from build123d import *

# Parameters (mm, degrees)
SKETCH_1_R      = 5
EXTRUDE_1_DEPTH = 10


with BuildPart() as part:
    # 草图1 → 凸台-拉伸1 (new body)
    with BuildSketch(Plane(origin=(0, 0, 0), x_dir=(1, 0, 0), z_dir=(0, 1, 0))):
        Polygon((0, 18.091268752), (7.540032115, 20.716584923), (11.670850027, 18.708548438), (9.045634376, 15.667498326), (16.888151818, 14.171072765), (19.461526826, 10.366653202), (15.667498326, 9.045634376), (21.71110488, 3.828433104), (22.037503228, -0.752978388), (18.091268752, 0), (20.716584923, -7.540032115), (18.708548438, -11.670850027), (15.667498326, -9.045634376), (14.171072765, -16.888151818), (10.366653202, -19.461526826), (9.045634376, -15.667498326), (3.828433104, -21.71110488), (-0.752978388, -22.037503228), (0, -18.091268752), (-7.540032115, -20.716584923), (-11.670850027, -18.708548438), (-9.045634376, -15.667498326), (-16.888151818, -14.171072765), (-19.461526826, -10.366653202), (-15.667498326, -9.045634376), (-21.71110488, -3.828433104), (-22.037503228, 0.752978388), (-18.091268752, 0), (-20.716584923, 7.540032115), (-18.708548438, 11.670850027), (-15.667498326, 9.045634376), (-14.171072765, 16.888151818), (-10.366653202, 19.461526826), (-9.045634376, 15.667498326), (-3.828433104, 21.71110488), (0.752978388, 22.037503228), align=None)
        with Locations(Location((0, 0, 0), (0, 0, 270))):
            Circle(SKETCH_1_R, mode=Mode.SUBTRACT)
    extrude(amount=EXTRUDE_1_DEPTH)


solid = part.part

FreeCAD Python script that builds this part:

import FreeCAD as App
import Part
import Sketcher

V = App.Vector

doc = App.newDocument("Part")
params = doc.addObject("Spreadsheet::Sheet", "Params")
for row, (alias, value) in enumerate([
    ("sketch1_diameter", "10 mm"),
    ("pad1_length", "10 mm"),
], start=1):
    params.set(f"A{row}", alias)
    params.set(f"B{row}", "=" + value)
    params.setAlias(f"B{row}", alias)

body = doc.addObject("PartDesign::Body", "Body")

# Sketch on XZ plane
sketch1 = body.newObject("Sketcher::SketchObject", "Sketch")
sketch1.AttachmentSupport = (doc.getObject("XZ_Plane"), [""])
sketch1.MapMode = "FlatFace"
sketch1.addGeometry([
    Part.LineSegment(V(7.5, -20.7, 0), V(0, -18.1, 0)),  # 0
    Part.LineSegment(V(0, -18.1, 0), V(0.8, -22, 0)),  # 1
    Part.LineSegment(V(0.8, -22, 0), V(-3.8, -21.7, 0)),  # 2
    Part.LineSegment(V(-3.8, -21.7, 0), V(-9, -15.7, 0)),  # 3
    Part.LineSegment(V(-9, -15.7, 0), V(-10.4, -19.5, 0)),  # 4
    Part.LineSegment(V(-10.4, -19.5, 0), V(-14.2, -16.9, 0)),  # 5
    Part.LineSegment(V(-14.2, -16.9, 0), V(-15.7, -9, 0)),  # 6
    Part.LineSegment(V(-15.7, -9, 0), V(-18.7, -11.7, 0)),  # 7
    Part.LineSegment(V(-18.7, -11.7, 0), V(-20.7, -7.5, 0)),  # 8
    Part.LineSegment(V(-20.7, -7.5, 0), V(-18.1, 0, 0)),  # 9
    Part.LineSegment(V(-18.1, 0, 0), V(-22, -0.8, 0)),  # 10
    Part.LineSegment(V(-22, -0.8, 0), V(-21.7, 3.8, 0)),  # 11
    Part.LineSegment(V(-21.7, 3.8, 0), V(-15.7, 9, 0)),  # 12
    Part.LineSegment(V(-15.7, 9, 0), V(-19.5, 10.4, 0)),  # 13
    Part.LineSegment(V(-19.5, 10.4, 0), V(-16.9, 14.2, 0)),  # 14
    Part.LineSegment(V(-16.9, 14.2, 0), V(-9, 15.7, 0)),  # 15
    Part.LineSegment(V(-9, 15.7, 0), V(-11.7, 18.7, 0)),  # 16
    Part.LineSegment(V(-11.7, 18.7, 0), V(-7.5, 20.7, 0)),  # 17
    Part.LineSegment(V(-7.5, 20.7, 0), V(0, 18.1, 0)),  # 18
    Part.LineSegment(V(0, 18.1, 0), V(-0.8, 22, 0)),  # 19
    Part.LineSegment(V(-0.8, 22, 0), V(3.8, 21.7, 0)),  # 20
    Part.LineSegment(V(3.8, 21.7, 0), V(9, 15.7, 0)),  # 21
    Part.LineSegment(V(9, 15.7, 0), V(10.4, 19.5, 0)),  # 22
    Part.LineSegment(V(10.4, 19.5, 0), V(14.2, 16.9, 0)),  # 23
    Part.LineSegment(V(14.2, 16.9, 0), V(15.7, 9, 0)),  # 24
    Part.LineSegment(V(15.7, 9, 0), V(18.7, 11.7, 0)),  # 25
    Part.LineSegment(V(18.7, 11.7, 0), V(20.7, 7.5, 0)),  # 26
    Part.LineSegment(V(20.7, 7.5, 0), V(18.1, 0, 0)),  # 27
    Part.LineSegment(V(18.1, 0, 0), V(22, 0.8, 0)),  # 28
    Part.LineSegment(V(22, 0.8, 0), V(21.7, -3.8, 0)),  # 29
    Part.LineSegment(V(21.7, -3.8, 0), V(15.7, -9, 0)),  # 30
    Part.LineSegment(V(15.7, -9, 0), V(19.5, -10.4, 0)),  # 31
    Part.LineSegment(V(19.5, -10.4, 0), V(16.9, -14.2, 0)),  # 32
    Part.LineSegment(V(16.9, -14.2, 0), V(9, -15.7, 0)),  # 33
    Part.LineSegment(V(9, -15.7, 0), V(11.7, -18.7, 0)),  # 34
    Part.LineSegment(V(11.7, -18.7, 0), V(7.5, -20.7, 0)),  # 35
    Part.Circle(V(0, 0, 0), V(0, 0, 1), 5),  # 36
], False)
sketch1.addConstraint([
    Sketcher.Constraint("Coincident", 0, 2, 1, 1),
    Sketcher.Constraint("Coincident", 1, 2, 2, 1),
    Sketcher.Constraint("Coincident", 2, 2, 3, 1),
    Sketcher.Constraint("Coincident", 3, 2, 4, 1),
    Sketcher.Constraint("Coincident", 4, 2, 5, 1),
    Sketcher.Constraint("Coincident", 5, 2, 6, 1),
    Sketcher.Constraint("Coincident", 6, 2, 7, 1),
    Sketcher.Constraint("Coincident", 7, 2, 8, 1),
    Sketcher.Constraint("Coincident", 8, 2, 9, 1),
    Sketcher.Constraint("Coincident", 9, 2, 10, 1),
    Sketcher.Constraint("Coincident", 10, 2, 11, 1),
    Sketcher.Constraint("Coincident", 11, 2, 12, 1),
    Sketcher.Constraint("Coincident", 12, 2, 13, 1),
    Sketcher.Constraint("Coincident", 13, 2, 14, 1),
    Sketcher.Constraint("Coincident", 14, 2, 15, 1),
    Sketcher.Constraint("Coincident", 15, 2, 16, 1),
    Sketcher.Constraint("Coincident", 16, 2, 17, 1),
    Sketcher.Constraint("Coincident", 17, 2, 18, 1),
    Sketcher.Constraint("Coincident", 18, 2, 19, 1),
    Sketcher.Constraint("Coincident", 19, 2, 20, 1),
    Sketcher.Constraint("Coincident", 20, 2, 21, 1),
    Sketcher.Constraint("Coincident", 21, 2, 22, 1),
    Sketcher.Constraint("Coincident", 22, 2, 23, 1),
    Sketcher.Constraint("Coincident", 23, 2, 24, 1),
    Sketcher.Constraint("Coincident", 24, 2, 25, 1),
    Sketcher.Constraint("Coincident", 25, 2, 26, 1),
    Sketcher.Constraint("Coincident", 26, 2, 27, 1),
    Sketcher.Constraint("Coincident", 27, 2, 28, 1),
    Sketcher.Constraint("Coincident", 28, 2, 29, 1),
    Sketcher.Constraint("Coincident", 29, 2, 30, 1),
    Sketcher.Constraint("Coincident", 30, 2, 31, 1),
    Sketcher.Constraint("Coincident", 31, 2, 32, 1),
    Sketcher.Constraint("Coincident", 32, 2, 33, 1),
    Sketcher.Constraint("Coincident", 33, 2, 34, 1),
    Sketcher.Constraint("Coincident", 34, 2, 35, 1),
    Sketcher.Constraint("Coincident", 35, 2, 0, 1),
    Sketcher.Constraint("Coincident", 36, 3, -1, 1),
    Sketcher.Constraint("Symmetric", 0, 2, 18, 2, -1, 1),
    Sketcher.Constraint("Symmetric", 1, 2, 19, 2, -1, 1),
    Sketcher.Constraint("Symmetric", 2, 2, 20, 2, -1, 1),
    Sketcher.Constraint("Symmetric", 3, 2, 21, 2, -1, 1),
    Sketcher.Constraint("Symmetric", 4, 2, 22, 2, -1, 1),
    Sketcher.Constraint("Symmetric", 5, 2, 23, 2, -1, 1),
    Sketcher.Constraint("Symmetric", 6, 2, 24, 2, -1, 1),
    Sketcher.Constraint("Symmetric", 7, 2, 25, 2, -1, 1),
    Sketcher.Constraint("Symmetric", 8, 2, 26, 2, -1, 1),
    Sketcher.Constraint("Symmetric", 9, 2, 27, 2, -1, 1),
    Sketcher.Constraint("Symmetric", 10, 2, 28, 2, -1, 1),
    Sketcher.Constraint("Symmetric", 11, 2, 29, 2, -1, 1),
    Sketcher.Constraint("Symmetric", 12, 2, 30, 2, -1, 1),
    Sketcher.Constraint("Symmetric", 13, 2, 31, 2, -1, 1),
    Sketcher.Constraint("Symmetric", 14, 2, 32, 2, -1, 1),
    Sketcher.Constraint("Symmetric", 15, 2, 33, 2, -1, 1),
    Sketcher.Constraint("Symmetric", 16, 2, 34, 2, -1, 1),
    Sketcher.Constraint("Symmetric", 17, 2, 35, 2, -1, 1),
    Sketcher.Constraint("Symmetric", 15, 2, 21, 2, -2),
    Sketcher.Constraint("Symmetric", 12, 2, 24, 2, -2),
    Sketcher.Constraint("PointOnObject", 0, 2, -2),
    Sketcher.Constraint("PointOnObject", 9, 2, -1),
    Sketcher.Constraint("Perpendicular", 0, 4),
    Sketcher.Constraint("Parallel", 1, 6),
    Sketcher.Constraint("Perpendicular", 3, 7),
    Sketcher.Constraint("Parallel", 4, 9),
    Sketcher.Constraint("Perpendicular", 6, 10),
    Sketcher.Constraint("Perpendicular", 2, 11),
    Sketcher.Constraint("Parallel", 7, 12),
    Sketcher.Constraint("Perpendicular", 9, 13),
    Sketcher.Constraint("Perpendicular", 5, 14),
    Sketcher.Constraint("Parallel", 10, 15),
    Sketcher.Constraint("Perpendicular", 12, 16),
    Sketcher.Constraint("Perpendicular", 8, 17),
    Sketcher.Constraint("Equal", 0, 3),
    Sketcher.Constraint("Equal", 1, 4),
    Sketcher.Constraint("Equal", 2, 5),
    Sketcher.Constraint("Equal", 3, 6),
    Sketcher.Constraint("Equal", 4, 7),
    Sketcher.Constraint("Equal", 5, 8),
    Sketcher.Constraint("Equal", 6, 9),
    Sketcher.Constraint("Equal", 7, 10),
    Sketcher.Constraint("Equal", 8, 11),
    Sketcher.Constraint("Equal", 9, 12),
    Sketcher.Constraint("Equal", 10, 13),
    Sketcher.Constraint("Equal", 11, 14),
    Sketcher.Constraint("Diameter", 36, 10.0),
    Sketcher.Constraint("DistanceY", 3, 2, -1, 1, 15.667498),
    Sketcher.Constraint("DistanceY", 1, 2, 2, 2, 0.326398),
    Sketcher.Constraint("DistanceX", 3, 2, 2, 2, 5.217201),
    Sketcher.Constraint("DistanceY", 5, 2, 7, 2, 5.217302),
    Sketcher.Constraint("Distance", 1, 4.01743),
    Sketcher.Constraint("DistanceY", 0, 2, -1, 1, 18.091269),
])
sketch1.setExpression("Constraints[83]", "Params.sketch1_diameter")
pad1 = body.newObject("PartDesign::Pad", "Pad")
pad1.Profile = sketch1
pad1.setExpression("Length", "Params.pad1_length")
pad1.Reversed = True

doc.recompute()
